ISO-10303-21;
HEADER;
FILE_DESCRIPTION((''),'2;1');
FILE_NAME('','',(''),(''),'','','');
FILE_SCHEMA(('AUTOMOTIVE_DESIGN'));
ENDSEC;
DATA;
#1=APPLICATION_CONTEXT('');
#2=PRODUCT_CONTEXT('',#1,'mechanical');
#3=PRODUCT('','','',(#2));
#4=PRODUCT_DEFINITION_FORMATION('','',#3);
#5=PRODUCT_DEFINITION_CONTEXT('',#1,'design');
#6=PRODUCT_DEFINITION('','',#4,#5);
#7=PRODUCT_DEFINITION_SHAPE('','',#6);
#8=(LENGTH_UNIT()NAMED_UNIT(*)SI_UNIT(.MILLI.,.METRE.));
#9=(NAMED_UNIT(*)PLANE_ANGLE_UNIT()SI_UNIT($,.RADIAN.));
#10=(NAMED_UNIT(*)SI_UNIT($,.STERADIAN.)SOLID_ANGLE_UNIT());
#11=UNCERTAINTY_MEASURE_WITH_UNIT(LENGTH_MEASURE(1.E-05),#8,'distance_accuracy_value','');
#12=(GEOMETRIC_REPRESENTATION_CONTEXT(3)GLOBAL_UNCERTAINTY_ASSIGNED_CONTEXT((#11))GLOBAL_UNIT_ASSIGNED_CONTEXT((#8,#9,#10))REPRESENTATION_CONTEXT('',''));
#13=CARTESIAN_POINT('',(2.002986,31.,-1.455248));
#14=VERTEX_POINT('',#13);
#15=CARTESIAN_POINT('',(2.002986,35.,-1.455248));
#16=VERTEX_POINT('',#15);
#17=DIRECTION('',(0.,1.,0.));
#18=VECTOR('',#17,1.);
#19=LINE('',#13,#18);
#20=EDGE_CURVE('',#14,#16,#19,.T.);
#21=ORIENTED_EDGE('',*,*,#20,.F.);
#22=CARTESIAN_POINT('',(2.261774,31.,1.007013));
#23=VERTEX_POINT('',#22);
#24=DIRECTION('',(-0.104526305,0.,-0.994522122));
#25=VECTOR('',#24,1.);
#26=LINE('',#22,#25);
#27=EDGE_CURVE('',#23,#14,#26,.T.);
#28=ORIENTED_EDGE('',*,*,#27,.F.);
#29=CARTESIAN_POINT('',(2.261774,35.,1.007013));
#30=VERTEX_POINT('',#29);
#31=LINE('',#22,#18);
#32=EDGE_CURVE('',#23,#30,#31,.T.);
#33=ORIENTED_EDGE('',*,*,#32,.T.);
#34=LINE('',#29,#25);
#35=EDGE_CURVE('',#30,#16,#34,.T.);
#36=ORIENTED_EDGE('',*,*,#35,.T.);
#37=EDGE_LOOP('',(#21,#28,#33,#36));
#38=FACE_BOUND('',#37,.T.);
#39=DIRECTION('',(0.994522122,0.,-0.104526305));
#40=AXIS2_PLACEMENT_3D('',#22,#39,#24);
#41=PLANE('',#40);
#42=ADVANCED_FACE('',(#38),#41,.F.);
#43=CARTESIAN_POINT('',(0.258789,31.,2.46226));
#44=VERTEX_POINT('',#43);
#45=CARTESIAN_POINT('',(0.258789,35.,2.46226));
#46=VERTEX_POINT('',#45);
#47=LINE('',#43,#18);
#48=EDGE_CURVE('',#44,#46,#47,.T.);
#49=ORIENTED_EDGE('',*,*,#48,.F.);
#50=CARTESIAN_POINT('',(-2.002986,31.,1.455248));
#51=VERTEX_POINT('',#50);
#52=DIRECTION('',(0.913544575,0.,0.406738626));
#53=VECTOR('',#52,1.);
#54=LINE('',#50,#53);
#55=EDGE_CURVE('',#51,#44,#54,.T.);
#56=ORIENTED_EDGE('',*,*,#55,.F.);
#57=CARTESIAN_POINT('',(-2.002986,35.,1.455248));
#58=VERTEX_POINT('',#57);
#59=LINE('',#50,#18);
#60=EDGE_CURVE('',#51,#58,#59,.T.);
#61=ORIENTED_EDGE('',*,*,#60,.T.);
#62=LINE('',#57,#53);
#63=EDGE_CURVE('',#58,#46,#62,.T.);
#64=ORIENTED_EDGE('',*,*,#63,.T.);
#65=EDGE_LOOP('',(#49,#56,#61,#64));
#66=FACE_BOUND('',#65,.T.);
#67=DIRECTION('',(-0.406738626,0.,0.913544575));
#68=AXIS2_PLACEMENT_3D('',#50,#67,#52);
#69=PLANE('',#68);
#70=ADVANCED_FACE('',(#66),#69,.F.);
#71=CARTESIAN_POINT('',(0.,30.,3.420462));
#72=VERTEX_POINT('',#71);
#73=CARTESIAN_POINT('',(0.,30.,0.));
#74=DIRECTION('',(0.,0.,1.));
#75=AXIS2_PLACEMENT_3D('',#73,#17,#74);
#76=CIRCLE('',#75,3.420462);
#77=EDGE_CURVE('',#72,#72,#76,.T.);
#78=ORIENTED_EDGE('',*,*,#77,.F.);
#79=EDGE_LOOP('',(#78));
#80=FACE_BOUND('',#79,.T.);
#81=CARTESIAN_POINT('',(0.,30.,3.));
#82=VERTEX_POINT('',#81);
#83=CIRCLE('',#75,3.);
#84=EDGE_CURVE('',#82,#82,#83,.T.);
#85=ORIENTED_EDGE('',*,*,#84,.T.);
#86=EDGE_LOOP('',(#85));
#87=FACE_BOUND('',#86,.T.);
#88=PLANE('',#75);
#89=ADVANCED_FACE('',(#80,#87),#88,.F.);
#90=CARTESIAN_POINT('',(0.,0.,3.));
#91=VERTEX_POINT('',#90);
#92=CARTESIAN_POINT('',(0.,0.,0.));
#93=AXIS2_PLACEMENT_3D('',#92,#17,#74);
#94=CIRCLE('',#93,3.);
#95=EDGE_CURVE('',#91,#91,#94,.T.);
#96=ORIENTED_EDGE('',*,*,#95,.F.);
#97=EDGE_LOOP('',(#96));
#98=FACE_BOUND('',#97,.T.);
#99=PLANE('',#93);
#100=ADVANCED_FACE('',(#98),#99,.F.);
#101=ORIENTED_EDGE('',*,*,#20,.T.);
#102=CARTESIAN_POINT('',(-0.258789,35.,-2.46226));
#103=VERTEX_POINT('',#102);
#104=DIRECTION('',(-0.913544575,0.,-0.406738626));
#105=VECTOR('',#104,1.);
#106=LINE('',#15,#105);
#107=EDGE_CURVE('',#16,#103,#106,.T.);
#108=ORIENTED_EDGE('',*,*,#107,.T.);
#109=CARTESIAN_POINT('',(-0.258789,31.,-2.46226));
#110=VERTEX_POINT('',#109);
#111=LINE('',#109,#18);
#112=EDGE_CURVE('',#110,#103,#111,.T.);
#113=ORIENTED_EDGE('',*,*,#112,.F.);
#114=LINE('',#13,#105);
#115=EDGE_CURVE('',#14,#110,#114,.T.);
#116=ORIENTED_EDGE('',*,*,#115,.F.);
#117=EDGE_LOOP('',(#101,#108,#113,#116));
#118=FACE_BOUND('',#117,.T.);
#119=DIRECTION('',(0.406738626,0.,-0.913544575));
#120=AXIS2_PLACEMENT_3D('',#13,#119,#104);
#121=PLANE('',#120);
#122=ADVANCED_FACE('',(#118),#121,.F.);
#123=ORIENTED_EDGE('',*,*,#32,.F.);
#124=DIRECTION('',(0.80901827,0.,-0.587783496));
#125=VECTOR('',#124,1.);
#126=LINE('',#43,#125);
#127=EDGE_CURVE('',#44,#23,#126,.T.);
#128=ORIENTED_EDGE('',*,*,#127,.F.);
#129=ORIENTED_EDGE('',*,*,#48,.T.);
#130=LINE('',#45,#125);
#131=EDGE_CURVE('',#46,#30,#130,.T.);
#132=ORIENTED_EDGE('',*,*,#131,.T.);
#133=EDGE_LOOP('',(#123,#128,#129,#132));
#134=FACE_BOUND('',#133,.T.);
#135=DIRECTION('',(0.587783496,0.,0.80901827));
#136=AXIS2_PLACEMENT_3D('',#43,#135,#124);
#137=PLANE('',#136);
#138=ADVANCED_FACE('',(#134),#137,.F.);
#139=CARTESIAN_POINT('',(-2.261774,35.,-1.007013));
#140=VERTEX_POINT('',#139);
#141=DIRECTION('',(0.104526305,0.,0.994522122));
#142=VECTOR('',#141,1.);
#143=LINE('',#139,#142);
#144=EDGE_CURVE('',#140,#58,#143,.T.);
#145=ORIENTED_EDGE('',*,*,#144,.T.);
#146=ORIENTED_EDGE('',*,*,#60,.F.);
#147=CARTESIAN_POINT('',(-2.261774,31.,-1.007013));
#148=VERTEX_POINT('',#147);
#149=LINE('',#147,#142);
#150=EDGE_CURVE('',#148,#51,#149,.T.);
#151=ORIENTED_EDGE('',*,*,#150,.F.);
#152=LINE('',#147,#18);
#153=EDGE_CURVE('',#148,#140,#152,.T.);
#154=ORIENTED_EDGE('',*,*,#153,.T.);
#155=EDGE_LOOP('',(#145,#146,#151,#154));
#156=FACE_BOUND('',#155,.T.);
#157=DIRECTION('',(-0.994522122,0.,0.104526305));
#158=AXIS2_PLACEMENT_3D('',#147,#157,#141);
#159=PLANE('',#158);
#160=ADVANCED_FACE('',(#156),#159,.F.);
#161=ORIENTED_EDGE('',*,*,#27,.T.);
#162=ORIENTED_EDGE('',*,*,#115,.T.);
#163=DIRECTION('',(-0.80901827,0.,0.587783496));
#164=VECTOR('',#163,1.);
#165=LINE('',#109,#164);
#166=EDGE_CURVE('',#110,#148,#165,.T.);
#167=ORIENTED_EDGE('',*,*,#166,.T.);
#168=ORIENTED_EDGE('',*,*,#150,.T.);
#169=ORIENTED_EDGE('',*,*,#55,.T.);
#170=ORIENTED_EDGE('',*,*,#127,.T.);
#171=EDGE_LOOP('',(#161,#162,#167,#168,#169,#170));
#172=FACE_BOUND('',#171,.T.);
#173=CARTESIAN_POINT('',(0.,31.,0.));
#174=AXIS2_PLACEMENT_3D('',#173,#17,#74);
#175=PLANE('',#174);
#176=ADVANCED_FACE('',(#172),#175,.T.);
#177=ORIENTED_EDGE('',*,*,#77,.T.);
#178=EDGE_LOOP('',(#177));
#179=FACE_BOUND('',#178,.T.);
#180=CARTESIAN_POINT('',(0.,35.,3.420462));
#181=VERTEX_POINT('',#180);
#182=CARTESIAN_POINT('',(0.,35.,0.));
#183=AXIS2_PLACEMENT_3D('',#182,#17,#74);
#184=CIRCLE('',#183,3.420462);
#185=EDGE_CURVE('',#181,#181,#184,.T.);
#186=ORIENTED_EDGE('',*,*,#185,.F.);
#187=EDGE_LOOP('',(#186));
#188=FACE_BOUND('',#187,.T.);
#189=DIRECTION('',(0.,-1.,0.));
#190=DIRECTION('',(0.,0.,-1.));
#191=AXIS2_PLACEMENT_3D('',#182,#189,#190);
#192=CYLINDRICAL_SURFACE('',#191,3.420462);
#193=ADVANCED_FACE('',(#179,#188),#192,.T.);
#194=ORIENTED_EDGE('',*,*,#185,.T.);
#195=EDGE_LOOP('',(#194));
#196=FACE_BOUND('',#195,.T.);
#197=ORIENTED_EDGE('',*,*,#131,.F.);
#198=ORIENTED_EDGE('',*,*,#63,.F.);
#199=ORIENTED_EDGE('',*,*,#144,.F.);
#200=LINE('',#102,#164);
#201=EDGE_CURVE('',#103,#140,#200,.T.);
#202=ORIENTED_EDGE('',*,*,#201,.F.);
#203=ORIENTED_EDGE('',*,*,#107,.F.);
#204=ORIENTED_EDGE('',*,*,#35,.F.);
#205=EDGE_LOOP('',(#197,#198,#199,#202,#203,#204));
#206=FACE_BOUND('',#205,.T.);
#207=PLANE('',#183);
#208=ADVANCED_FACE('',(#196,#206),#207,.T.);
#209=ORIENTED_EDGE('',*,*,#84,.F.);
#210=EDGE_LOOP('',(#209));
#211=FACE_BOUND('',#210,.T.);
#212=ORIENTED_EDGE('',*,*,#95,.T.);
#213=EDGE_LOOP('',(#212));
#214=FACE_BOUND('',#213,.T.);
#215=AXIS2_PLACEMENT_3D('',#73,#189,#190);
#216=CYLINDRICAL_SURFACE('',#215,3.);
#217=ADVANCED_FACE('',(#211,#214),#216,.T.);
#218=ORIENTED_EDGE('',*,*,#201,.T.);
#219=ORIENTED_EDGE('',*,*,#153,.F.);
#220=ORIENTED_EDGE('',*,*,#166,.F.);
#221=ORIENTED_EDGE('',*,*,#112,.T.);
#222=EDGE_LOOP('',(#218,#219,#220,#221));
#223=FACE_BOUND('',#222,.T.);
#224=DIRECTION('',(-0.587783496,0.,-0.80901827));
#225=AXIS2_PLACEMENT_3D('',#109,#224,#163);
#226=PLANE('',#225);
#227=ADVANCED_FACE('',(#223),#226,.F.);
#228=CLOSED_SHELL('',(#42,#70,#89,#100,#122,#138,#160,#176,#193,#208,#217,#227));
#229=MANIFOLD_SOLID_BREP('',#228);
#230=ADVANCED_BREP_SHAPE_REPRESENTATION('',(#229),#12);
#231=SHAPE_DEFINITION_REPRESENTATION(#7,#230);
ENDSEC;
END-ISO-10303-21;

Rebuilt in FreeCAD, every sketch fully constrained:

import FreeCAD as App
import Part
import Sketcher


def add_polygon(sketch, points):
    """Adds a closed chain of lines whose ends are joined by coincident constraints."""
    first, n = sketch.GeometryCount, len(points)
    for a, b in zip(points, points[1:] + points[:1]):
        sketch.addGeometry(Part.LineSegment(App.Vector(*a, 0), App.Vector(*b, 0)), False)
    for i in range(n):
        sketch.addConstraint(Sketcher.Constraint("Coincident", first + i, 2, first + (i + 1) % n, 1))

doc = App.newDocument("Part")
params = doc.addObject("Spreadsheet::Sheet", "Params")
for row, (alias, value) in enumerate([
    ("sketch1_diameter", "6 mm"),
    ("pad1_length", "30 mm"),
    ("pad2_length", "5 mm"),
    ("pocket1_length", "4 mm"),
], start=1):
    params.set(f"A{row}", alias)
    params.set(f"B{row}", "=" + value)
    params.setAlias(f"B{row}", alias)

body = doc.addObject("PartDesign::Body", "Body")

sketch1 = body.newObject("Sketcher::SketchObject", "Sketch")
sketch1.AttachmentSupport = (doc.getObject("XZ_Plane"), [""])
sketch1.MapMode = "FlatFace"
sketch1.addGeometry(Part.Circle(App.Vector(0, 0, 0), App.Vector(0, 0, 1), 3), False)
sketch1.addConstraint(Sketcher.Constraint("Coincident", 0, 3, -1, 1))
sketch1.addConstraint(Sketcher.Constraint("Diameter", 0, 6.0))
sketch1.setExpression("Constraints[1]", "Params.sketch1_diameter")
pad1 = body.newObject("PartDesign::Pad", "Pad")
pad1.Profile = sketch1
pad1.setExpression("Length", "Params.pad1_length")
pad1.Reversed = True

sketch2 = body.newObject("Sketcher::SketchObject", "Sketch001")
sketch2.AttachmentSupport = (doc.getObject("XZ_Plane"), [""])
sketch2.MapMode = "FlatFace"
sketch2.AttachmentOffset = App.Placement(App.Vector(0, 0, -30), App.Rotation())
sketch2.addGeometry(Part.Circle(App.Vector(0, 0, 0), App.Vector(0, 0, 1), 3.420462), False)
sketch2.addConstraint(Sketcher.Constraint("Coincident", 0, 3, -1, 1))
sketch2.addConstraint(Sketcher.Constraint("Diameter", 0, 6.840924))
pad2 = body.newObject("PartDesign::Pad", "Pad001")
pad2.Profile = sketch2
pad2.setExpression("Length", "Params.pad2_length")
pad2.Reversed = True

sketch3 = body.newObject("Sketcher::SketchObject", "Sketch002")
sketch3.AttachmentSupport = (doc.getObject("XZ_Plane"), [""])
sketch3.MapMode = "FlatFace"
sketch3.AttachmentOffset = App.Placement(App.Vector(0, 0, -35), App.Rotation())
add_polygon(sketch3, [(-0.258789, -2.46226), (-2.261774, -1.007013), (-2.002986, 1.455248), (0.258789, 2.46226), (2.261774, 1.007013), (2.002986, -1.455248)])
sketch3.addConstraint(Sketcher.Constraint("Symmetric", 0, 2, 3, 2, -1, 1))
sketch3.addConstraint(Sketcher.Constraint("Symmetric", 1, 2, 4, 2, -1, 1))
sketch3.addConstraint(Sketcher.Constraint("Symmetric", 2, 2, 5, 2, -1, 1))
sketch3.addConstraint(Sketcher.Constraint("Equal", 0, 1))
sketch3.addConstraint(Sketcher.Constraint("Equal", 1, 2))
sketch3.addConstraint(Sketcher.Constraint("DistanceX", -1, 1, 2, 2, 0.258789))
sketch3.addConstraint(Sketcher.Constraint("DistanceY", -1, 1, 2, 2, 2.46226))
sketch3.addConstraint(Sketcher.Constraint("DistanceX", 0, 2, 1, 2, 0.258789))
sketch3.addConstraint(Sketcher.Constraint("DistanceY", 0, 2, 1, 2, 2.46226))
pocket1 = body.newObject("PartDesign::Pocket", "Pocket")
pocket1.Profile = sketch3
pocket1.setExpression("Length", "Params.pocket1_length")
pocket1.Reversed = True

doc.recompute()
